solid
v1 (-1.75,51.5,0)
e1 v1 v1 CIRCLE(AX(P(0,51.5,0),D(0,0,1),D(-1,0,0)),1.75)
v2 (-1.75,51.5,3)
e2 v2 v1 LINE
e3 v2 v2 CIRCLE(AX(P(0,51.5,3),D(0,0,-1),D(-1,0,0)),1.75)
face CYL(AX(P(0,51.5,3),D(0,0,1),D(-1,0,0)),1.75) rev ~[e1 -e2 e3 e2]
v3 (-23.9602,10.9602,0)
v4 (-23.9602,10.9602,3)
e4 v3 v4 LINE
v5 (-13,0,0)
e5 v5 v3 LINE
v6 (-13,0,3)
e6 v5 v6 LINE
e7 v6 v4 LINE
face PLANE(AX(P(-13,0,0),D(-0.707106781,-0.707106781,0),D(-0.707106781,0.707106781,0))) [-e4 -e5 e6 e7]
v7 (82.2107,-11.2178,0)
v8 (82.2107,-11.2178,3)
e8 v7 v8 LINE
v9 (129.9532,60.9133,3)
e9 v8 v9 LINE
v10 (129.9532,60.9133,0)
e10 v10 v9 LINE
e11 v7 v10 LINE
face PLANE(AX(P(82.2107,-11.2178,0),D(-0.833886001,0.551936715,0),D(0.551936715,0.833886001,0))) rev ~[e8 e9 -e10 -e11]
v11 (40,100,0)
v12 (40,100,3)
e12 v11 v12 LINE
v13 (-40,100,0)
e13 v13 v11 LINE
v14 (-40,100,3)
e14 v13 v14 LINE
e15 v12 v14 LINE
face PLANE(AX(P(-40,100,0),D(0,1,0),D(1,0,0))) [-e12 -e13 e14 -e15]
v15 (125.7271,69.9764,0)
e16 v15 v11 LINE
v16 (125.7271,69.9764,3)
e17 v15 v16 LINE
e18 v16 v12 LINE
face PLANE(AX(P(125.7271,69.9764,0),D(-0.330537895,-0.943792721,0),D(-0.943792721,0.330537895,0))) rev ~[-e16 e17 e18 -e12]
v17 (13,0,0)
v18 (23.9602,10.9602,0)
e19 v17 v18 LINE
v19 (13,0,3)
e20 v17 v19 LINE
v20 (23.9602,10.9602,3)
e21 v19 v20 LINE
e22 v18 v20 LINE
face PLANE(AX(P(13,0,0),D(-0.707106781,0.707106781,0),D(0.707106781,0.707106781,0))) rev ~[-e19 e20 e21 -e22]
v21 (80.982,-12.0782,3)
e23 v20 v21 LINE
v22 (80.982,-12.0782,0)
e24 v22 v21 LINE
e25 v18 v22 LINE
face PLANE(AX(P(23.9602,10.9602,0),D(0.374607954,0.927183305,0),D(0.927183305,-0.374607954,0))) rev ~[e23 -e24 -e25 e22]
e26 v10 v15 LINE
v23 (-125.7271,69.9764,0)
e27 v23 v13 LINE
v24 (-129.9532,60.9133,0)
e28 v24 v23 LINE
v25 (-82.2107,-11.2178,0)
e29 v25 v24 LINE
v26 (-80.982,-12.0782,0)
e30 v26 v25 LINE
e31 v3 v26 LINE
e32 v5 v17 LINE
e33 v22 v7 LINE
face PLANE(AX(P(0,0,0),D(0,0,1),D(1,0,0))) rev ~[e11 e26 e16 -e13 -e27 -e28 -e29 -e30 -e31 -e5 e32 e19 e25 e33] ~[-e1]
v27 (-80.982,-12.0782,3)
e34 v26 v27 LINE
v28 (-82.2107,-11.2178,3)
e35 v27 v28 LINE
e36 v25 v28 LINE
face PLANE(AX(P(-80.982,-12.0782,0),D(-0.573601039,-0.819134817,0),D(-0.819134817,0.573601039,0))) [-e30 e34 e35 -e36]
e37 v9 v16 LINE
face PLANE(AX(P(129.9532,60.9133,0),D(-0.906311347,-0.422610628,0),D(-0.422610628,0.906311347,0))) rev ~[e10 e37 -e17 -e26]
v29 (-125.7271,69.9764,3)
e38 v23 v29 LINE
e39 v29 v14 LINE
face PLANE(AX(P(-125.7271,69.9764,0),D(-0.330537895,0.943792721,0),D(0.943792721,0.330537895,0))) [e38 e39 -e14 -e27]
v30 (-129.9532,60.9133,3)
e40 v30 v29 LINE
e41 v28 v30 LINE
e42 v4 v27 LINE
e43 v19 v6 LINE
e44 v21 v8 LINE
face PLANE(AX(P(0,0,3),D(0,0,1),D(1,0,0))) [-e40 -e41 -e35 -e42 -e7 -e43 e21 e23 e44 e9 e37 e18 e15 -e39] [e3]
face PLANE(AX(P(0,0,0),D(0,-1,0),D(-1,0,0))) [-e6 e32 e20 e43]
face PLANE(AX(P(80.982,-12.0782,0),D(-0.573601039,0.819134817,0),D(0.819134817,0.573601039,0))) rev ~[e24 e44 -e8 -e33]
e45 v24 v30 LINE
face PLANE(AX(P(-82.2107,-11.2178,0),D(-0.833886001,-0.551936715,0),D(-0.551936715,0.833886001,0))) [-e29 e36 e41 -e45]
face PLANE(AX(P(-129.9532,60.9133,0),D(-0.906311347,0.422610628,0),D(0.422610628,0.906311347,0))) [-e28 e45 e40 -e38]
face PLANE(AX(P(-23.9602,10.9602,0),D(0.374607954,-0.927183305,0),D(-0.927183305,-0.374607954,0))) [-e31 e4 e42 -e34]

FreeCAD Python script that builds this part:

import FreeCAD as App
import Part
import Sketcher
from FreeCAD import Vector
Q = App.Units.Quantity


def add_polygon(sketch, points):
    """Adds a closed chain of lines whose ends are joined by coincident constraints."""
    first, n = sketch.GeometryCount, len(points)
    for a, b in zip(points, points[1:] + points[:1]):
        sketch.addGeometry(Part.LineSegment(App.Vector(*a, 0), App.Vector(*b, 0)), False)
    for i in range(n):
        sketch.addConstraint(Sketcher.Constraint("Coincident", first + i, 2, first + (i + 1) % n, 1))

doc = App.newDocument("Part")
params = doc.addObject("Spreadsheet::Sheet", "Params")
for row, (alias, value) in enumerate([
    ("sketch1_length", "10 mm"),
    ("sketch1_length2", "15.5 mm"),
    ("sketch1_length3", "61.5 mm"),
    ("sketch1_length4", "1.5 mm"),
    ("sketch1_length5", "86.5 mm"),
    ("pad1_length", "3 mm"),
    ("sketch2_diameter", "3.5 mm"),
    ("pocket1_length", "3 mm"),
], start=1):
    params.set(f"A{row}", alias)
    params.set(f"B{row}", "=" + value)
    params.setAlias(f"B{row}", alias)

body = doc.addObject("PartDesign::Body", "Body")

# Sketch on XY plane
sketch1 = body.newObject("Sketcher::SketchObject", "Sketch")
sketch1.AttachmentSupport = (doc.getObject("XY_Plane"), [""])
sketch1.MapMode = "FlatFace"
add_polygon(sketch1, [(-13, 0), (13, 0), (24, 11), (81, -12.1), (82.2, -11.2), (130, 60.9), (125.7, 70), (40, 100), (-40, 100), (-125.7, 70), (-130, 60.9), (-82.2, -11.2), (-81, -12.1), (-24, 11)])  # lines 0-13
sketch1.addConstraint([
    Sketcher.Constraint("Horizontal", 0),
    Sketcher.Constraint("Horizontal", 7),
    Sketcher.Constraint("Symmetric", 0, 2, 13, 2, -1, 1),
    Sketcher.Constraint("Symmetric", 5, 2, 8, 2, -2),
    Sketcher.Constraint("Symmetric", 4, 2, 9, 2, -2),
    Sketcher.Constraint("Symmetric", 3, 2, 10, 2, -2),
    Sketcher.Constraint("Symmetric", 2, 2, 11, 2, -2),
    Sketcher.Constraint("Symmetric", 1, 2, 12, 2, -2),
    Sketcher.Constraint("Perpendicular", 1, 13),
    Sketcher.Constraint("Equal", 6, 8),
    Sketcher.Constraint("Distance", 5, Q("10 mm")),
    Sketcher.Constraint("DistanceX", -1, 1, 0, 2, Q("13 mm")),
    Sketcher.Constraint("DistanceY", -1, 1, 6, 2, Q("100 mm")),
    Sketcher.Constraint("Distance", 1, Q("15.5 mm")),
    Sketcher.Constraint("Distance", 2, Q("61.5 mm")),
    Sketcher.Constraint("Distance", 3, Q("1.5 mm")),
    Sketcher.Constraint("Distance", 4, Q("86.5 mm")),
    Sketcher.Constraint("DistanceX", 7, 2, 7, 1, Q("80 mm")),
    Sketcher.Constraint("Angle", 2, Q("-22 deg")),
    Sketcher.Constraint("Angle", 5, Q("114.9995 deg")),
    Sketcher.Constraint("Angle", 4, Q("56.5 deg")),
    Sketcher.Constraint("DistanceX", -1, 1, 5, 2, Q("125.727 mm")),
])
sketch1.setExpression("Constraints[24]", "Params.sketch1_length")
sketch1.setExpression("Constraints[27]", "Params.sketch1_length2")
sketch1.setExpression("Constraints[28]", "Params.sketch1_length3")
sketch1.setExpression("Constraints[29]", "Params.sketch1_length4")
sketch1.setExpression("Constraints[30]", "Params.sketch1_length5")
pad1 = body.newObject("PartDesign::Pad", "Pad")
pad1.Profile = sketch1
pad1.setExpression("Length", "Params.pad1_length")

# Sketch on XY plane
sketch2 = body.newObject("Sketcher::SketchObject", "Sketch001")
sketch2.AttachmentSupport = (doc.getObject("XY_Plane"), [""])
sketch2.MapMode = "FlatFace"
sketch2.AttachmentOffset = App.Placement(Vector(0, 0, 3), App.Rotation())
sketch2.addGeometry(Part.Circle(Vector(0, 51.5, 0), Vector(0, 0, 1), 1.8), False)
sketch2.addConstraint([
    Sketcher.Constraint("PointOnObject", 0, 3, -2),
    Sketcher.Constraint("Diameter", 0, Q("3.5 mm")),
    Sketcher.Constraint("DistanceY", -1, 1, 0, 3, Q("51.5 mm")),
])
sketch2.setExpression("Constraints[1]", "Params.sketch2_diameter")
pocket1 = body.newObject("PartDesign::Pocket", "Pocket")
pocket1.Profile = sketch2
pocket1.setExpression("Length", "Params.pocket1_length")

doc.recompute()
